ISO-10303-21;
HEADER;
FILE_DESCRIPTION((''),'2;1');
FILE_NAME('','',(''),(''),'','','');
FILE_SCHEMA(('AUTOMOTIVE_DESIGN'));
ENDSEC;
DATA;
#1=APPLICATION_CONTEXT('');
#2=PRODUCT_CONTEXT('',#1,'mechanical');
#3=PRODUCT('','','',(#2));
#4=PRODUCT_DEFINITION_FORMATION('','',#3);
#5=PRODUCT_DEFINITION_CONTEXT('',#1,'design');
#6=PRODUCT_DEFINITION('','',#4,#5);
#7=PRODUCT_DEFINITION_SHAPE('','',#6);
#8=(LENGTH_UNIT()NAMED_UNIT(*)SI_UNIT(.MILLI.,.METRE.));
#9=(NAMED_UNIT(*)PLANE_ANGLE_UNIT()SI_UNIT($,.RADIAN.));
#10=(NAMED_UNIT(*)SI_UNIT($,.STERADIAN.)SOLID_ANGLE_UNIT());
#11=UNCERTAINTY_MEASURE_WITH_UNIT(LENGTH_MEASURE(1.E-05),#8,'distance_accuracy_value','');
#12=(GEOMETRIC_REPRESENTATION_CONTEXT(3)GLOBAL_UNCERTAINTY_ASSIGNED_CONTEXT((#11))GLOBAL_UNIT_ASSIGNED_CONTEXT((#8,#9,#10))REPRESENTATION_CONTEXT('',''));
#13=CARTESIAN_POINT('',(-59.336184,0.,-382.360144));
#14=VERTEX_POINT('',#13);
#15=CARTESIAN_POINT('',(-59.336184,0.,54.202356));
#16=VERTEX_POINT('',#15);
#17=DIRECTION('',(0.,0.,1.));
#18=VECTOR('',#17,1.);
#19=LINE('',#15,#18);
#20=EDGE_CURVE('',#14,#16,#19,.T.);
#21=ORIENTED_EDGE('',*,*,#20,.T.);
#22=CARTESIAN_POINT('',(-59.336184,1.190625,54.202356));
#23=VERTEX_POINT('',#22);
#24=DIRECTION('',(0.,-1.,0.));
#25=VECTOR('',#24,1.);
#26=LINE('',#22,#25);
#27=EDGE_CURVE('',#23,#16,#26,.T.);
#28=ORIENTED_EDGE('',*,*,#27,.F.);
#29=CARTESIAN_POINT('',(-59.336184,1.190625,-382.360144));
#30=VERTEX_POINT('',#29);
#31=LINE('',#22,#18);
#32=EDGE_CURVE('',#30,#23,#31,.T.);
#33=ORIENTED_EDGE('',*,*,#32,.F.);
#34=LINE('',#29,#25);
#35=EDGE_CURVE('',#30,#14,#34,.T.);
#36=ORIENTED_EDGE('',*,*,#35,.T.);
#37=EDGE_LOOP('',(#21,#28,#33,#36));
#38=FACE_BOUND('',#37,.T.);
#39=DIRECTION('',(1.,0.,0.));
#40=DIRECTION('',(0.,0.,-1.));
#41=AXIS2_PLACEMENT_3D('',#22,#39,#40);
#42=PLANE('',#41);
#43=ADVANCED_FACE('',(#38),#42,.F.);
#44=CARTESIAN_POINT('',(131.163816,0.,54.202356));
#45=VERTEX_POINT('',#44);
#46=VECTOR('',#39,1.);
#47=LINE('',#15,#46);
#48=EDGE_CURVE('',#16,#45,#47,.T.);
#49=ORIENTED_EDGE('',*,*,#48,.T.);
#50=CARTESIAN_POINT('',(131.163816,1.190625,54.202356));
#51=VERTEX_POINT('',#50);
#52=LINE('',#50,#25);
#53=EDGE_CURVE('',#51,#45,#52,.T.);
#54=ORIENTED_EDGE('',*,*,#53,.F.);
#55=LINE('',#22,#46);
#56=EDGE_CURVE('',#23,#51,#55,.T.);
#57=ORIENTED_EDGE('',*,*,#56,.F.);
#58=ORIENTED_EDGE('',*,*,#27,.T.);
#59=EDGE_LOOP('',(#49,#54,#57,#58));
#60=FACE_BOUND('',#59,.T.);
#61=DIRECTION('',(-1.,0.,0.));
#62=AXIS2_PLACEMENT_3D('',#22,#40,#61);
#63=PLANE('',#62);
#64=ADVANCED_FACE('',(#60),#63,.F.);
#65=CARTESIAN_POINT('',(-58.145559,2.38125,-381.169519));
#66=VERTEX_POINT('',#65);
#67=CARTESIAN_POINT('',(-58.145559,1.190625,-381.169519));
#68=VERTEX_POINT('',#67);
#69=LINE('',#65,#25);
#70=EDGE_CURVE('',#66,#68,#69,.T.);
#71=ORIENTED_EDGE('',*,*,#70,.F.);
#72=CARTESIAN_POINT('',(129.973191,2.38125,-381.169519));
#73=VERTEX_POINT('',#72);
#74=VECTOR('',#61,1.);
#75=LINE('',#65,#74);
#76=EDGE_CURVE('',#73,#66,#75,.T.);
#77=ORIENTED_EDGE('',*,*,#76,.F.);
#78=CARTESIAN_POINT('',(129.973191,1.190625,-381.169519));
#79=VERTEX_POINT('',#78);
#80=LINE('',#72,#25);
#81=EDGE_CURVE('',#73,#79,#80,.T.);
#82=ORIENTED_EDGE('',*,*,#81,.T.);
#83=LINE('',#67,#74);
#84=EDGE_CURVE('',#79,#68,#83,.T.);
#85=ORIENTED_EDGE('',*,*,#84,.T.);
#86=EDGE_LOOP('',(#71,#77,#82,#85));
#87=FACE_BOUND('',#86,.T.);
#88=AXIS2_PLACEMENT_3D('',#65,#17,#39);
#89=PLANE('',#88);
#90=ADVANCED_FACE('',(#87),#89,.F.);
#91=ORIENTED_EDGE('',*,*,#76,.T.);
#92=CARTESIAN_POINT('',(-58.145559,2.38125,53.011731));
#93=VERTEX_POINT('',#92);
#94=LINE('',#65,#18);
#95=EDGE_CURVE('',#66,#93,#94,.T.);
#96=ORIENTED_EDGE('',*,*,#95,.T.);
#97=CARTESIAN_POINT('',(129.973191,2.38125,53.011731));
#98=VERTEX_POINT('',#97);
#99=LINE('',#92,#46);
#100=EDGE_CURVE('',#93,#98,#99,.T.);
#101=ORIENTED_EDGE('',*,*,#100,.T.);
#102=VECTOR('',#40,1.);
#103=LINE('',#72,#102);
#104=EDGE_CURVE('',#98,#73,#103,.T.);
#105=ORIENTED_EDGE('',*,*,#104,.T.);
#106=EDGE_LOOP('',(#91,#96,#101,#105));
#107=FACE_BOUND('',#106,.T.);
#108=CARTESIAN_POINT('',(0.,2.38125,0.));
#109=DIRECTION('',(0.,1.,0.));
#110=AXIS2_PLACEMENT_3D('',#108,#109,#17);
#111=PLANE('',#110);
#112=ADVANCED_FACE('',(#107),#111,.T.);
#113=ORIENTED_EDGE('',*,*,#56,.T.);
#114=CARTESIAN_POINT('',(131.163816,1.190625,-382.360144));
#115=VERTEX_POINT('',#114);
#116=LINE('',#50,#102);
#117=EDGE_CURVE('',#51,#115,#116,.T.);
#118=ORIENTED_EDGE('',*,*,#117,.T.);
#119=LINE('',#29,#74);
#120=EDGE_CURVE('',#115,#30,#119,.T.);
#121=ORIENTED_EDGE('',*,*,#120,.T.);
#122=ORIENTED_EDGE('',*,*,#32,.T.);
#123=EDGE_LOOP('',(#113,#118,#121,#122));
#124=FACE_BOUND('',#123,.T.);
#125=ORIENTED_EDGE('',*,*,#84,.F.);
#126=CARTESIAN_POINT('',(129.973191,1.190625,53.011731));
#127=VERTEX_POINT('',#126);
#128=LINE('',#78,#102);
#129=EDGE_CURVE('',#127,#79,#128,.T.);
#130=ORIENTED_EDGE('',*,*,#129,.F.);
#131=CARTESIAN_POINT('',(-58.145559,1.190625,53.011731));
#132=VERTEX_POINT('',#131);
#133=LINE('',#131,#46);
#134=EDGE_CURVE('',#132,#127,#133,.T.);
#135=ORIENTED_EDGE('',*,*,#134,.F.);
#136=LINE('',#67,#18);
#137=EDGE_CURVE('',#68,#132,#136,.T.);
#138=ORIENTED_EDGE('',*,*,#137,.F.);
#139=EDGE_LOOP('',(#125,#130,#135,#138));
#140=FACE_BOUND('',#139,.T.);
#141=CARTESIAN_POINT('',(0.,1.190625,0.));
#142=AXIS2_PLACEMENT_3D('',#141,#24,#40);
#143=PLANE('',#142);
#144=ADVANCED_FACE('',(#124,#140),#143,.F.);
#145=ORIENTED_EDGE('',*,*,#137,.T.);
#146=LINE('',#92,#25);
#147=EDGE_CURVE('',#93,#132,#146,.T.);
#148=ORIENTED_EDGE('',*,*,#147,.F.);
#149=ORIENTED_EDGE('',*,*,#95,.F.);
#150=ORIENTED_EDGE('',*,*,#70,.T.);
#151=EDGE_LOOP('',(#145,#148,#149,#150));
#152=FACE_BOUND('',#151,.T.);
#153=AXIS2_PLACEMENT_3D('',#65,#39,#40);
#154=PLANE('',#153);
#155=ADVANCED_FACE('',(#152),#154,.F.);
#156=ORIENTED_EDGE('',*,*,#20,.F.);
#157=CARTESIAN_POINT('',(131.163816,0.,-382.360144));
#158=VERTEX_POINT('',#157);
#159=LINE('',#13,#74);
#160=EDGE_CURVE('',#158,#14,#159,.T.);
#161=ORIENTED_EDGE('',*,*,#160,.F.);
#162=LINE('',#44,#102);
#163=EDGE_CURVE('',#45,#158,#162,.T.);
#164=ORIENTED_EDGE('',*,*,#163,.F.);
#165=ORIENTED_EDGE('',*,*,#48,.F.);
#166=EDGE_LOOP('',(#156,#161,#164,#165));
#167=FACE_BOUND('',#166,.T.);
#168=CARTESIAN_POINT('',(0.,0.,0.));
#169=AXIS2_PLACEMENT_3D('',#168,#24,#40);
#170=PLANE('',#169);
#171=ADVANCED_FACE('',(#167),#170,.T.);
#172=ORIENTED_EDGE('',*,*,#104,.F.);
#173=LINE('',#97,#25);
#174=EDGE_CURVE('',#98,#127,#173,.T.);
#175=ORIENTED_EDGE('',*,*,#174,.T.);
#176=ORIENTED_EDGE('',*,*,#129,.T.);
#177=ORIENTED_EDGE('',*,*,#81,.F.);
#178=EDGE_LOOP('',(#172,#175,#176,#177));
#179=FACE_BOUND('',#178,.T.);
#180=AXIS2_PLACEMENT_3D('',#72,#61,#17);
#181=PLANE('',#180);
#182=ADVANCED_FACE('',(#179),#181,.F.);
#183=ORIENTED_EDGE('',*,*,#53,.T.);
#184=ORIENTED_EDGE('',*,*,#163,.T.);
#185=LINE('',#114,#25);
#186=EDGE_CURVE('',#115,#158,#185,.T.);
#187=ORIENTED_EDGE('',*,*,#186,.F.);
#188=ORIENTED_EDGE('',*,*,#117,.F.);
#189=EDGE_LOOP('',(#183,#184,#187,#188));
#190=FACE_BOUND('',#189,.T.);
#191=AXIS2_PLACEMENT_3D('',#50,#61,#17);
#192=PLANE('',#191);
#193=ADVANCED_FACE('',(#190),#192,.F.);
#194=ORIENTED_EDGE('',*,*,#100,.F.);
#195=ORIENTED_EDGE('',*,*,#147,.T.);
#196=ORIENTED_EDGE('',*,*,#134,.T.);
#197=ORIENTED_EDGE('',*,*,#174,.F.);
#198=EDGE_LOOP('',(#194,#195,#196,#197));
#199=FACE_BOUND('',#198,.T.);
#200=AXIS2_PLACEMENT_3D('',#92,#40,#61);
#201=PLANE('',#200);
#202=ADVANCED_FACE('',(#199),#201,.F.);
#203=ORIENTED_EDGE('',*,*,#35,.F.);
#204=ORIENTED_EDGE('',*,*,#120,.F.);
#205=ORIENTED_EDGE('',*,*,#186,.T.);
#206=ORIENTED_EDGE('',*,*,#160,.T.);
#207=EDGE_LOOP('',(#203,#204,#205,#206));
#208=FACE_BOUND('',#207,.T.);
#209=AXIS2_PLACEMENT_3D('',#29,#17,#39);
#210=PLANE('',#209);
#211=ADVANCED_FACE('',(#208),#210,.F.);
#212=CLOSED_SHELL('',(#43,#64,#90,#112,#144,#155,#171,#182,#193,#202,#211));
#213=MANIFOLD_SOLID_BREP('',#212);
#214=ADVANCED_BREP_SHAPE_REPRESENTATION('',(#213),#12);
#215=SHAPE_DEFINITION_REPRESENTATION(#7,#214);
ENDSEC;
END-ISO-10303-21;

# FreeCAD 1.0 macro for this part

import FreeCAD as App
import Part
import Sketcher
from FreeCAD import Vector
Q = App.Units.Quantity


def add_polygon(sketch, points):
    """Adds a closed chain of lines whose ends are joined by coincident constraints."""
    first, n = sketch.GeometryCount, len(points)
    for a, b in zip(points, points[1:] + points[:1]):
        sketch.addGeometry(Part.LineSegment(App.Vector(*a, 0), App.Vector(*b, 0)), False)
    for i in range(n):
        sketch.addConstraint(Sketcher.Constraint("Coincident", first + i, 2, first + (i + 1) % n, 1))

doc = App.newDocument("Part")
body = doc.addObject("PartDesign::Body", "Body")

sketch1 = doc.addObject("Sketcher::SketchObject", "Sketch")
body.addObject(sketch1)
sketch1.AttachmentSupport = (doc.XZ_Plane, [""])
sketch1.MapMode = "FlatFace"
add_polygon(sketch1, [(-59.336184, -382.360144), (-59.336184, 54.202356), (131.163816, 54.202356), (131.163816, -382.360144)])
sketch1.addConstraint(Sketcher.Constraint("Vertical", 0))
sketch1.addConstraint(Sketcher.Constraint("Horizontal", 1))
sketch1.addConstraint(Sketcher.Constraint("Vertical", 2))
sketch1.addConstraint(Sketcher.Constraint("Horizontal", 3))
sketch1.addConstraint(Sketcher.Constraint("DistanceX", 1, 1, 1, 2, Q("7.5 in")))
sketch1.addConstraint(Sketcher.Constraint("DistanceY", 0, 1, 0, 2, Q("17.1875 in")))
sketch1.addConstraint(Sketcher.Constraint("DistanceX", 0, 2, -1, 1, 59.336184))
sketch1.addConstraint(Sketcher.Constraint("DistanceY", -1, 1, 0, 2, 54.202356))
pad1 = doc.addObject("PartDesign::Pad", "Pad")
body.addObject(pad1)
pad1.Profile = sketch1
pad1.Length = Q("0.046875 in")
pad1.Reversed = True

sketch2 = doc.addObject("Sketcher::SketchObject", "Sketch001")
body.addObject(sketch2)
sketch2.AttachmentSupport = (doc.XZ_Plane, [""])
sketch2.MapMode = "FlatFace"
sketch2.AttachmentOffset = App.Placement(Vector(0, 0, -0.046875 * 25.4), App.Rotation())
add_polygon(sketch2, [(-58.145559, -381.169519), (-58.145559, 53.011731), (129.973191, 53.011731), (129.973191, -381.169519)])
sketch2.addConstraint(Sketcher.Constraint("Vertical", 0))
sketch2.addConstraint(Sketcher.Constraint("Horizontal", 1))
sketch2.addConstraint(Sketcher.Constraint("Vertical", 2))
sketch2.addConstraint(Sketcher.Constraint("Horizontal", 3))
sketch2.addConstraint(Sketcher.Constraint("DistanceX", 1, 1, 1, 2, Q("7.40625 in")))
sketch2.addConstraint(Sketcher.Constraint("DistanceY", 0, 1, 0, 2, Q("17.09375 in")))
sketch2.addConstraint(Sketcher.Constraint("DistanceX", 0, 2, -1, 1, 58.145559))
sketch2.addConstraint(Sketcher.Constraint("DistanceY", -1, 1, 0, 2, 53.011731))
pad2 = doc.addObject("PartDesign::Pad", "Pad001")
body.addObject(pad2)
pad2.Profile = sketch2
pad2.Length = Q("0.046875 in")
pad2.Reversed = True

doc.recompute()
